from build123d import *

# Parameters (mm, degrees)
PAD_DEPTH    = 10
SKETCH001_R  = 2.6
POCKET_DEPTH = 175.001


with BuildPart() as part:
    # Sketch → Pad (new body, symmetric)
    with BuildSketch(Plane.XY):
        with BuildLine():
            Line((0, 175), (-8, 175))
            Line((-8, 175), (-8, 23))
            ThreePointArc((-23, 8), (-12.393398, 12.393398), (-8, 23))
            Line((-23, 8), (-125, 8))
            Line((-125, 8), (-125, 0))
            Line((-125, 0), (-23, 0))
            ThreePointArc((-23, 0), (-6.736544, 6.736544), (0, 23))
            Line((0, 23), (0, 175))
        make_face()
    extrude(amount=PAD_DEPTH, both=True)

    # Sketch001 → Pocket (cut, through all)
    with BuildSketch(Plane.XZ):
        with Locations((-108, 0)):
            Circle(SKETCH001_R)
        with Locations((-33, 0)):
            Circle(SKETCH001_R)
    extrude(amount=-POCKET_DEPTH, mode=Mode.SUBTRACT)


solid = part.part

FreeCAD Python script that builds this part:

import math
import FreeCAD as App
import Part
import Sketcher

V = App.Vector
Q = App.Units.Quantity

doc = App.newDocument("Part")
body = doc.addObject("PartDesign::Body", "Body")

sketch1 = body.newObject("Sketcher::SketchObject", "Sketch")
sketch1.AttachmentSupport = (doc.getObject("XY_Plane"), [""])
sketch1.MapMode = "FlatFace"
sketch1.addGeometry([
    Part.LineSegment(V(0, 175, 0), V(-8, 175, 0)),
    Part.LineSegment(V(-8, 175, 0), V(-8, 23, 0)),
    Part.ArcOfCircle(Part.Circle(V(-23, 23, 0), V(0, 0, 1), 15), math.radians(-90), math.radians(0)),
    Part.LineSegment(V(-23, 8, 0), V(-125, 8, 0)),
    Part.LineSegment(V(-125, 8, 0), V(-125, 0, 0)),
    Part.LineSegment(V(-125, 0, 0), V(-23, 0, 0)),
    Part.ArcOfCircle(Part.Circle(V(-23, 23, 0), V(0, 0, 1), 23), math.radians(-90), math.radians(0)),
    Part.LineSegment(V(0, 23, 0), V(0, 175, 0)),
], False)
sketch1.addConstraint([
    Sketcher.Constraint("Coincident", 0, 2, 1, 1),
    Sketcher.Constraint("Tangent", 1, 2, 2, 2),
    Sketcher.Constraint("Tangent", 2, 1, 3, 1),
    Sketcher.Constraint("Coincident", 3, 2, 4, 1),
    Sketcher.Constraint("Coincident", 4, 2, 5, 1),
    Sketcher.Constraint("Tangent", 5, 2, 6, 1),
    Sketcher.Constraint("Tangent", 6, 2, 7, 1),
    Sketcher.Constraint("Coincident", 7, 2, 0, 1),
    Sketcher.Constraint("Horizontal", 0),
    Sketcher.Constraint("Vertical", 1),
    Sketcher.Constraint("Horizontal", 3),
    Sketcher.Constraint("Vertical", 4),
    Sketcher.Constraint("Horizontal", 5),
    Sketcher.Constraint("Vertical", 7),
    Sketcher.Constraint("Coincident", 6, 3, 2, 3),
    Sketcher.Constraint("PointOnObject", 4, 2, -1),
    Sketcher.Constraint("PointOnObject", 6, 2, -2),
    Sketcher.Constraint("Radius", 2, Q("14.999999 mm")),
    Sketcher.Constraint("Radius", 6, Q("23 mm")),
    Sketcher.Constraint("DistanceX", 3, 2, 3, 1, Q("102 mm")),
    Sketcher.Constraint("DistanceY", 1, 2, 1, 1, Q("152 mm")),
])
pad1 = body.newObject("PartDesign::Pad", "Pad")
pad1.Profile = sketch1
pad1.Length = 20
pad1.Midplane = True

sketch2 = body.newObject("Sketcher::SketchObject", "Sketch001")
sketch2.AttachmentSupport = (doc.getObject("XZ_Plane"), [""])
sketch2.MapMode = "FlatFace"
sketch2.addGeometry([
    Part.Circle(V(-108, 0, 0), V(0, 0, 1), 2.6),
    Part.Circle(V(-33, 0, 0), V(0, 0, 1), 2.6),
], False)
sketch2.addConstraint([
    Sketcher.Constraint("Equal", 0, 1),
    Sketcher.Constraint("PointOnObject", 0, 3, -1),
    Sketcher.Constraint("PointOnObject", 1, 3, -1),
    Sketcher.Constraint("Diameter", 0, Q("5.2 mm")),
    Sketcher.Constraint("DistanceX", 0, 3, -1, 1, Q("108 mm")),
    Sketcher.Constraint("DistanceX", 1, 3, -1, 1, Q("33 mm")),
])
pocket1 = body.newObject("PartDesign::Pocket", "Pocket")
pocket1.Profile = sketch2
pocket1.Type = "ThroughAll"

doc.recompute()
